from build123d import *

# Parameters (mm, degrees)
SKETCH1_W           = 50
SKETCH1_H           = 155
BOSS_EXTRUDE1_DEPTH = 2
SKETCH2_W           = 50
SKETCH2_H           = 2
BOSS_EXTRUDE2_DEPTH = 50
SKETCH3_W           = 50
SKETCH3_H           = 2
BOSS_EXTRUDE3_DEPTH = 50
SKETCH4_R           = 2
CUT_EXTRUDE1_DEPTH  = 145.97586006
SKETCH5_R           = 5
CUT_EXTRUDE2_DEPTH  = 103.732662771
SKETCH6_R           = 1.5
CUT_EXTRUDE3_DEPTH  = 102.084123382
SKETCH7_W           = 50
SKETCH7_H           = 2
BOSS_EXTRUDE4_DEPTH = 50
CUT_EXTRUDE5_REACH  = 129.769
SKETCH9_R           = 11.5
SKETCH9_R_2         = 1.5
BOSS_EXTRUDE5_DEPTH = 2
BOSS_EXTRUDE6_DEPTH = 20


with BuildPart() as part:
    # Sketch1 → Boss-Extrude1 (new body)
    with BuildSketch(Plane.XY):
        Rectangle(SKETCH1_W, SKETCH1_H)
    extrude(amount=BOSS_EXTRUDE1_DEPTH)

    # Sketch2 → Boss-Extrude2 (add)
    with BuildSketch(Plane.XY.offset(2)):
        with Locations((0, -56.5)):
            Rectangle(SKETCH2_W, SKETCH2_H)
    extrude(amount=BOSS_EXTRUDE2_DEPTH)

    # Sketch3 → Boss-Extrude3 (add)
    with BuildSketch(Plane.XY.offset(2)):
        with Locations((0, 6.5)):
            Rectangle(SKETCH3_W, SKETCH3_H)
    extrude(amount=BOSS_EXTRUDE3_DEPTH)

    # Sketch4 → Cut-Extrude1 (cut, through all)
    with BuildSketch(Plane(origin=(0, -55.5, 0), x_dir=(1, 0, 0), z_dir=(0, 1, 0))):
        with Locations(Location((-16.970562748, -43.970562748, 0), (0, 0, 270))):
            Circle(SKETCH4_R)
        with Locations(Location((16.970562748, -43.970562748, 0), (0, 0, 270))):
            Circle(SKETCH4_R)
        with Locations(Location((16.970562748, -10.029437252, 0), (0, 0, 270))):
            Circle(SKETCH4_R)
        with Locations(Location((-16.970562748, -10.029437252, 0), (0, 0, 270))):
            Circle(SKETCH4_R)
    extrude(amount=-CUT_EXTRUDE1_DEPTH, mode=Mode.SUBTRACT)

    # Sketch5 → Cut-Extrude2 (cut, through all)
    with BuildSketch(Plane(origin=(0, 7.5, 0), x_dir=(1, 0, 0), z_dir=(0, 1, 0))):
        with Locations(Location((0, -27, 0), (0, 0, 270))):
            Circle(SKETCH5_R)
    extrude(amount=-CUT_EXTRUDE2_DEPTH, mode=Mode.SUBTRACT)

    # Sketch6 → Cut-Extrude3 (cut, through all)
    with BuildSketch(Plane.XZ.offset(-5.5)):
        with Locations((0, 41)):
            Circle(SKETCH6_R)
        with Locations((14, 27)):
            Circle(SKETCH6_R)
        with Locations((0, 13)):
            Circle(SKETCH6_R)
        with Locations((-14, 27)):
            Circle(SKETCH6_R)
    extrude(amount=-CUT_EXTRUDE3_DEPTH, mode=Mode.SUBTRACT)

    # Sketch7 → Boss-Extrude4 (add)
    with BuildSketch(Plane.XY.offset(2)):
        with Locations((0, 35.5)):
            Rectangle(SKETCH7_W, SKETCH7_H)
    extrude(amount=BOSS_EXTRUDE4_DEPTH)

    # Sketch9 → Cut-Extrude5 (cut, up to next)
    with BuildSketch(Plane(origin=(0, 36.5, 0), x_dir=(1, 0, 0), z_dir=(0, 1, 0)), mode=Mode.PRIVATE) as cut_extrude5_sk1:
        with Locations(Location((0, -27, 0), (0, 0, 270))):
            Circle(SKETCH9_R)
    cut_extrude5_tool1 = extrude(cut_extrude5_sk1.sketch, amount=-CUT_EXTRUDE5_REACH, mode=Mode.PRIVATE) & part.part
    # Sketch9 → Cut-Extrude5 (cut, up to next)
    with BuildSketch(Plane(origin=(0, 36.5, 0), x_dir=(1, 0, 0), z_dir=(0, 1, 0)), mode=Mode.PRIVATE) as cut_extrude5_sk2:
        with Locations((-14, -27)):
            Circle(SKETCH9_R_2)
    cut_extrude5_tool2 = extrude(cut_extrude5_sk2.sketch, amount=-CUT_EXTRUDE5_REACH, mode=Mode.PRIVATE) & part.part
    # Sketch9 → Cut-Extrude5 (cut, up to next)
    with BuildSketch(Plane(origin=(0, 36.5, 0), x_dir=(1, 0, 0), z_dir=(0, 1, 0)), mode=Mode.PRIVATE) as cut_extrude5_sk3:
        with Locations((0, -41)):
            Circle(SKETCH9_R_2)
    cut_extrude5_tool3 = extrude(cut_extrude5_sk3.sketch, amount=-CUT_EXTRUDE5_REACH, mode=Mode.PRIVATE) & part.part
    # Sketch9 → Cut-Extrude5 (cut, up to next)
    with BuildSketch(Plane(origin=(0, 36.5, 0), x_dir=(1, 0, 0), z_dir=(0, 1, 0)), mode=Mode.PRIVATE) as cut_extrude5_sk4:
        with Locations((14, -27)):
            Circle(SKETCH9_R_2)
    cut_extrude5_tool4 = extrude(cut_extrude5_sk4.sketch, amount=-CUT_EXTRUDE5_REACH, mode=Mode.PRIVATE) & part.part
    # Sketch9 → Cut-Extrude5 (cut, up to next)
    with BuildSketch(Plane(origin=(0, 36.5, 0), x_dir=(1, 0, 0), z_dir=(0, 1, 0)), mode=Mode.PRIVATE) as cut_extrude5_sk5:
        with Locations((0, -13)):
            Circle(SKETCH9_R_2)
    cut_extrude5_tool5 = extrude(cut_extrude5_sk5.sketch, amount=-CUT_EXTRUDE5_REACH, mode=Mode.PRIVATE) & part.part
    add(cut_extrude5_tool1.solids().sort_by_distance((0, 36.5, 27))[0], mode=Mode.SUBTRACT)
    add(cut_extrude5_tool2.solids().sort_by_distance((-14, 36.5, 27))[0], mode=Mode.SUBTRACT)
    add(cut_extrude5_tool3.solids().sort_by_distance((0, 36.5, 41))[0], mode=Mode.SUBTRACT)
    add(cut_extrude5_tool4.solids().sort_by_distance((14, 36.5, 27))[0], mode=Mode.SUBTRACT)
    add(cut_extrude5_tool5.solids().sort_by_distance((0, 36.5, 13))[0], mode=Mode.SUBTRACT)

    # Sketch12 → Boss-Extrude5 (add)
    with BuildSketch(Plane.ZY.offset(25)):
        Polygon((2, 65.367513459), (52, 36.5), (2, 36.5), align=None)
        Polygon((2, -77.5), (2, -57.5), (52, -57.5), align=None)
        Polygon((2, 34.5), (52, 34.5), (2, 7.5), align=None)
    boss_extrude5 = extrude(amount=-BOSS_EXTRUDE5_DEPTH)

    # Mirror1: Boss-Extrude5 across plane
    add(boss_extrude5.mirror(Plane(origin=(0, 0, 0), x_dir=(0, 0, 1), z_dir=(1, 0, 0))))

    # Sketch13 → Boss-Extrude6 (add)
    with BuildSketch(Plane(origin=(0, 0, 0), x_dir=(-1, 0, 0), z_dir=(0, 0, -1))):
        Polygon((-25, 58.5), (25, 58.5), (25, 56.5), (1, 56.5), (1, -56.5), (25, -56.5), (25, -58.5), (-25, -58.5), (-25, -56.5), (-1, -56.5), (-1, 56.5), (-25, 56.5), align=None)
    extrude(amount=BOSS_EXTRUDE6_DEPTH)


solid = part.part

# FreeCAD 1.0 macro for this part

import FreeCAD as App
import Part
import Sketcher
from FreeCAD import Vector
Q = App.Units.Quantity


def add_polygon(sketch, points):
    """Adds a closed chain of lines whose ends are joined by coincident constraints."""
    first, n = sketch.GeometryCount, len(points)
    for a, b in zip(points, points[1:] + points[:1]):
        sketch.addGeometry(Part.LineSegment(App.Vector(*a, 0), App.Vector(*b, 0)), False)
    for i in range(n):
        sketch.addConstraint(Sketcher.Constraint("Coincident", first + i, 2, first + (i + 1) % n, 1))

doc = App.newDocument("Part")
params = doc.addObject("Spreadsheet::Sheet", "Params")
for row, (alias, value) in enumerate([
    ("sketch1_width", "50 mm"),
    ("sketch1_height", "155 mm"),
    ("pad1_length", "2 mm"),
    ("sketch2_width", "50 mm"),
    ("sketch2_height", "2 mm"),
    ("pad2_length", "50 mm"),
    ("sketch3_width", "50 mm"),
    ("sketch3_height", "2 mm"),
    ("pad3_length", "50 mm"),
    ("sketch4_diameter", "4 mm"),
    ("sketch5_diameter", "10 mm"),
    ("sketch6_diameter", "3 mm"),
    ("sketch7_width", "50 mm"),
    ("sketch7_height", "2 mm"),
    ("pad4_length", "50 mm"),
    ("sketch8_diameter", "23 mm"),
    ("sketch9_diameter", "3 mm"),
    ("sketch10_diameter", "3 mm"),
    ("sketch11_diameter", "3 mm"),
    ("sketch12_diameter", "3 mm"),
    ("sketch13_width", "20 mm"),
    ("sketch13_width2", "27 mm"),
    ("sketch13_height", "50 mm"),
    ("pad5_length", "2 mm"),
    ("sketch14_width", "50 mm"),
    ("sketch14_width2", "24 mm"),
    ("sketch14_height", "2 mm"),
    ("sketch14_height2", "113 mm"),
    ("pad6_length", "20 mm"),
], start=1):
    params.set(f"A{row}", alias)
    params.set(f"B{row}", "=" + value)
    params.setAlias(f"B{row}", alias)

body = doc.addObject("PartDesign::Body", "Body")

# Sketch on XY plane
sketch1 = doc.addObject("Sketcher::SketchObject", "Sketch")
body.addObject(sketch1)
sketch1.AttachmentSupport = (doc.XY_Plane, [""])
sketch1.MapMode = "FlatFace"
add_polygon(sketch1, [(-25, 77.5), (-25, -77.5), (25, -77.5), (25, 77.5)])  # lines 0-3
sketch1.addConstraint([
    Sketcher.Constraint("Vertical", 0),
    Sketcher.Constraint("Horizontal", 1),
    Sketcher.Constraint("Vertical", 2),
    Sketcher.Constraint("Horizontal", 3),
    Sketcher.Constraint("Symmetric", 0, 2, 2, 2, -1, 1),
    Sketcher.Constraint("DistanceX", 1, 1, 1, 2, Q("50 mm")),
    Sketcher.Constraint("DistanceY", 0, 2, 0, 1, Q("155 mm")),
])
sketch1.setExpression("Constraints[9]", "Params.sketch1_width")
sketch1.setExpression("Constraints[10]", "Params.sketch1_height")
pad1 = doc.addObject("PartDesign::Pad", "Pad")
body.addObject(pad1)
pad1.Profile = sketch1
pad1.setExpression("Length", "Params.pad1_length")

# Sketch on XY plane
sketch2 = doc.addObject("Sketcher::SketchObject", "Sketch001")
body.addObject(sketch2)
sketch2.AttachmentSupport = (doc.XY_Plane, [""])
sketch2.MapMode = "FlatFace"
sketch2.AttachmentOffset = App.Placement(Vector(0, 0, 2), App.Rotation())
add_polygon(sketch2, [(-25, -55.5), (-25, -57.5), (25, -57.5), (25, -55.5)])  # lines 0-3
sketch2.addConstraint([
    Sketcher.Constraint("Vertical", 0),
    Sketcher.Constraint("Horizontal", 1),
    Sketcher.Constraint("Vertical", 2),
    Sketcher.Constraint("Horizontal", 3),
    Sketcher.Constraint("DistanceX", 1, 1, 1, 2, Q("50 mm")),
    Sketcher.Constraint("DistanceY", 0, 2, 0, 1, Q("2 mm")),
    Sketcher.Constraint("DistanceX", 0, 2, -1, 1, Q("25 mm")),
    Sketcher.Constraint("DistanceY", 0, 2, -1, 1, Q("57.5 mm")),
])
sketch2.setExpression("Constraints[8]", "Params.sketch2_width")
sketch2.setExpression("Constraints[9]", "Params.sketch2_height")
pad2 = doc.addObject("PartDesign::Pad", "Pad001")
body.addObject(pad2)
pad2.Profile = sketch2
pad2.setExpression("Length", "Params.pad2_length")

# Sketch on XY plane
sketch3 = doc.addObject("Sketcher::SketchObject", "Sketch002")
body.addObject(sketch3)
sketch3.AttachmentSupport = (doc.XY_Plane, [""])
sketch3.MapMode = "FlatFace"
sketch3.AttachmentOffset = App.Placement(Vector(0, 0, 2), App.Rotation())
add_polygon(sketch3, [(-25, 7.5), (-25, 5.5), (25, 5.5), (25, 7.5)])  # lines 0-3
sketch3.addConstraint([
    Sketcher.Constraint("Vertical", 0),
    Sketcher.Constraint("Horizontal", 1),
    Sketcher.Constraint("Vertical", 2),
    Sketcher.Constraint("Horizontal", 3),
    Sketcher.Constraint("DistanceX", 1, 1, 1, 2, Q("50 mm")),
    Sketcher.Constraint("DistanceY", 0, 2, 0, 1, Q("2 mm")),
    Sketcher.Constraint("DistanceX", 0, 2, -1, 1, Q("25 mm")),
    Sketcher.Constraint("DistanceY", -1, 1, 0, 2, Q("5.5 mm")),
])
sketch3.setExpression("Constraints[8]", "Params.sketch3_width")
sketch3.setExpression("Constraints[9]", "Params.sketch3_height")
pad3 = doc.addObject("PartDesign::Pad", "Pad002")
body.addObject(pad3)
pad3.Profile = sketch3
pad3.setExpression("Length", "Params.pad3_length")

# Sketch on XZ plane
sketch4 = doc.addObject("Sketcher::SketchObject", "Sketch003")
body.addObject(sketch4)
sketch4.AttachmentSupport = (doc.XZ_Plane, [""])
sketch4.MapMode = "FlatFace"
sketch4.AttachmentOffset = App.Placement(Vector(0, 0, 55.5), App.Rotation())
sketch4.addGeometry([
    Part.Circle(Vector(-16.970563, 43.970563, 0), Vector(0, 0, 1), 2),
    Part.Circle(Vector(16.970563, 43.970563, 0), Vector(0, 0, 1), 2),
    Part.Circle(Vector(16.970563, 10.029437, 0), Vector(0, 0, 1), 2),
    Part.Circle(Vector(-16.970563, 10.029437, 0), Vector(0, 0, 1), 2),
], False)
sketch4.addConstraint([
    Sketcher.Constraint("Equal", 0, 1),
    Sketcher.Constraint("Equal", 1, 2),
    Sketcher.Constraint("Equal", 2, 3),
    Sketcher.Constraint("Symmetric", 0, 3, 1, 3, -2),
    Sketcher.Constraint("Symmetric", 2, 3, 3, 3, -2),
    Sketcher.Constraint("Vertical", 1, 3, 2, 3),
    Sketcher.Constraint("Diameter", 0, Q("4 mm")),
    Sketcher.Constraint("DistanceX", 0, 3, -1, 1, Q("16.970563 mm")),
    Sketcher.Constraint("DistanceY", -1, 1, 0, 3, Q("43.970563 mm")),
    Sketcher.Constraint("DistanceY", -1, 1, 2, 3, Q("10.029437 mm")),
])
sketch4.setExpression("Constraints[6]", "Params.sketch4_diameter")
pocket1 = doc.addObject("PartDesign::Pocket", "Pocket")
body.addObject(pocket1)
pocket1.Profile = sketch4
pocket1.Type = "ThroughAll"
pocket1.Reversed = True

# Sketch on XZ plane
sketch5 = doc.addObject("Sketcher::SketchObject", "Sketch004")
body.addObject(sketch5)
sketch5.AttachmentSupport = (doc.XZ_Plane, [""])
sketch5.MapMode = "FlatFace"
sketch5.AttachmentOffset = App.Placement(Vector(0, 0, -7.5), App.Rotation())
sketch5.addGeometry(Part.Circle(Vector(0, 27, 0), Vector(0, 0, 1), 5), False)
sketch5.addConstraint([
    Sketcher.Constraint("PointOnObject", 0, 3, -2),
    Sketcher.Constraint("Diameter", 0, Q("10 mm")),
    Sketcher.Constraint("DistanceY", -1, 1, 0, 3, Q("27 mm")),
])
sketch5.setExpression("Constraints[1]", "Params.sketch5_diameter")
pocket2 = doc.addObject("PartDesign::Pocket", "Pocket001")
body.addObject(pocket2)
pocket2.Profile = sketch5
pocket2.Type = "ThroughAll"
pocket2.Reversed = True

# Sketch on XZ plane
sketch6 = doc.addObject("Sketcher::SketchObject", "Sketch005")
body.addObject(sketch6)
sketch6.AttachmentSupport = (doc.XZ_Plane, [""])
sketch6.MapMode = "FlatFace"
sketch6.AttachmentOffset = App.Placement(Vector(0, 0, -5.5), App.Rotation())
sketch6.addGeometry([
    Part.Circle(Vector(0, 41, 0), Vector(0, 0, 1), 1.5),
    Part.Circle(Vector(14, 27, 0), Vector(0, 0, 1), 1.5),
    Part.Circle(Vector(0, 13, 0), Vector(0, 0, 1), 1.5),
    Part.Circle(Vector(-14, 27, 0), Vector(0, 0, 1), 1.5),
], False)
sketch6.addConstraint([
    Sketcher.Constraint("Equal", 0, 1),
    Sketcher.Constraint("Equal", 1, 2),
    Sketcher.Constraint("Equal", 2, 3),
    Sketcher.Constraint("Symmetric", 1, 3, 3, 3, -2),
    Sketcher.Constraint("PointOnObject", 0, 3, -2),
    Sketcher.Constraint("PointOnObject", 2, 3, -2),
    Sketcher.Constraint("Diameter", 0, Q("3 mm")),
    Sketcher.Constraint("DistanceY", -1, 1, 0, 3, Q("41 mm")),
    Sketcher.Constraint("DistanceX", -1, 1, 1, 3, Q("14 mm")),
    Sketcher.Constraint("DistanceY", -1, 1, 1, 3, Q("27 mm")),
    Sketcher.Constraint("DistanceY", -1, 1, 2, 3, Q("13 mm")),
])
sketch6.setExpression("Constraints[6]", "Params.sketch6_diameter")
pocket3 = doc.addObject("PartDesign::Pocket", "Pocket002")
body.addObject(pocket3)
pocket3.Profile = sketch6
pocket3.Type = "ThroughAll"

# Sketch on XY plane
sketch7 = doc.addObject("Sketcher::SketchObject", "Sketch006")
body.addObject(sketch7)
sketch7.AttachmentSupport = (doc.XY_Plane, [""])
sketch7.MapMode = "FlatFace"
sketch7.AttachmentOffset = App.Placement(Vector(0, 0, 2), App.Rotation())
add_polygon(sketch7, [(-25, 36.5), (-25, 34.5), (25, 34.5), (25, 36.5)])  # lines 0-3
sketch7.addConstraint([
    Sketcher.Constraint("Vertical", 0),
    Sketcher.Constraint("Horizontal", 1),
    Sketcher.Constraint("Vertical", 2),
    Sketcher.Constraint("Horizontal", 3),
    Sketcher.Constraint("DistanceX", 1, 1, 1, 2, Q("50 mm")),
    Sketcher.Constraint("DistanceY", 0, 2, 0, 1, Q("2 mm")),
    Sketcher.Constraint("DistanceX", 0, 2, -1, 1, Q("25 mm")),
    Sketcher.Constraint("DistanceY", -1, 1, 0, 2, Q("34.5 mm")),
])
sketch7.setExpression("Constraints[8]", "Params.sketch7_width")
sketch7.setExpression("Constraints[9]", "Params.sketch7_height")
pad4 = doc.addObject("PartDesign::Pad", "Pad003")
body.addObject(pad4)
pad4.Profile = sketch7
pad4.setExpression("Length", "Params.pad4_length")

# Sketch on XZ plane
sketch8 = doc.addObject("Sketcher::SketchObject", "Sketch007")
body.addObject(sketch8)
sketch8.AttachmentSupport = (doc.XZ_Plane, [""])
sketch8.MapMode = "FlatFace"
sketch8.AttachmentOffset = App.Placement(Vector(0, 0, -36.5), App.Rotation())
sketch8.addGeometry(Part.Circle(Vector(0, 27, 0), Vector(0, 0, 1), 11.5), False)
sketch8.addConstraint([
    Sketcher.Constraint("PointOnObject", 0, 3, -2),
    Sketcher.Constraint("Diameter", 0, Q("23 mm")),
    Sketcher.Constraint("DistanceY", -1, 1, 0, 3, Q("27 mm")),
])
sketch8.setExpression("Constraints[1]", "Params.sketch8_diameter")
pocket4 = doc.addObject("PartDesign::Pocket", "Pocket003")
body.addObject(pocket4)
pocket4.Profile = sketch8
pocket4.Type = "UpToFirst"
pocket4.Reversed = True

# Sketch on XZ plane
sketch9 = doc.addObject("Sketcher::SketchObject", "Sketch008")
body.addObject(sketch9)
sketch9.AttachmentSupport = (doc.XZ_Plane, [""])
sketch9.MapMode = "FlatFace"
sketch9.AttachmentOffset = App.Placement(Vector(0, 0, -36.5), App.Rotation())
sketch9.addGeometry(Part.Circle(Vector(-14, 27, 0), Vector(0, 0, 1), 1.5), False)
sketch9.addConstraint([
    Sketcher.Constraint("Diameter", 0, Q("3 mm")),
    Sketcher.Constraint("DistanceX", 0, 3, -1, 1, Q("14 mm")),
    Sketcher.Constraint("DistanceY", -1, 1, 0, 3, Q("27 mm")),
])
sketch9.setExpression("Constraints[0]", "Params.sketch9_diameter")
pocket5 = doc.addObject("PartDesign::Pocket", "Pocket004")
body.addObject(pocket5)
pocket5.Profile = sketch9
pocket5.Type = "UpToFirst"
pocket5.Reversed = True

# Sketch on XZ plane
sketch10 = doc.addObject("Sketcher::SketchObject", "Sketch009")
body.addObject(sketch10)
sketch10.AttachmentSupport = (doc.XZ_Plane, [""])
sketch10.MapMode = "FlatFace"
sketch10.AttachmentOffset = App.Placement(Vector(0, 0, -36.5), App.Rotation())
sketch10.addGeometry(Part.Circle(Vector(0, 41, 0), Vector(0, 0, 1), 1.5), False)
sketch10.addConstraint([
    Sketcher.Constraint("PointOnObject", 0, 3, -2),
    Sketcher.Constraint("Diameter", 0, Q("3 mm")),
    Sketcher.Constraint("DistanceY", -1, 1, 0, 3, Q("41 mm")),
])
sketch10.setExpression("Constraints[1]", "Params.sketch10_diameter")
pocket6 = doc.addObject("PartDesign::Pocket", "Pocket005")
body.addObject(pocket6)
pocket6.Profile = sketch10
pocket6.Type = "UpToFirst"
pocket6.Reversed = True

# Sketch on XZ plane
sketch11 = doc.addObject("Sketcher::SketchObject", "Sketch010")
body.addObject(sketch11)
sketch11.AttachmentSupport = (doc.XZ_Plane, [""])
sketch11.MapMode = "FlatFace"
sketch11.AttachmentOffset = App.Placement(Vector(0, 0, -36.5), App.Rotation())
sketch11.addGeometry(Part.Circle(Vector(14, 27, 0), Vector(0, 0, 1), 1.5), False)
sketch11.addConstraint([
    Sketcher.Constraint("Diameter", 0, Q("3 mm")),
    Sketcher.Constraint("DistanceX", -1, 1, 0, 3, Q("14 mm")),
    Sketcher.Constraint("DistanceY", -1, 1, 0, 3, Q("27 mm")),
])
sketch11.setExpression("Constraints[0]", "Params.sketch11_diameter")
pocket7 = doc.addObject("PartDesign::Pocket", "Pocket006")
body.addObject(pocket7)
pocket7.Profile = sketch11
pocket7.Type = "UpToFirst"
pocket7.Reversed = True

# Sketch on XZ plane
sketch12 = doc.addObject("Sketcher::SketchObject", "Sketch011")
body.addObject(sketch12)
sketch12.AttachmentSupport = (doc.XZ_Plane, [""])
sketch12.MapMode = "FlatFace"
sketch12.AttachmentOffset = App.Placement(Vector(0, 0, -36.5), App.Rotation())
sketch12.addGeometry(Part.Circle(Vector(0, 13, 0), Vector(0, 0, 1), 1.5), False)
sketch12.addConstraint([
    Sketcher.Constraint("PointOnObject", 0, 3, -2),
    Sketcher.Constraint("Diameter", 0, Q("3 mm")),
    Sketcher.Constraint("DistanceY", -1, 1, 0, 3, Q("13 mm")),
])
sketch12.setExpression("Constraints[1]", "Params.sketch12_diameter")
pocket8 = doc.addObject("PartDesign::Pocket", "Pocket007")
body.addObject(pocket8)
pocket8.Profile = sketch12
pocket8.Type = "UpToFirst"
pocket8.Reversed = True

# Sketch on YZ plane
sketch13 = doc.addObject("Sketcher::SketchObject", "Sketch012")
body.addObject(sketch13)
sketch13.AttachmentSupport = (doc.YZ_Plane, [""])
sketch13.MapMode = "FlatFace"
sketch13.AttachmentOffset = App.Placement(Vector(0, 0, -25), App.Rotation())
add_polygon(sketch13, [(36.5, 52), (65.367513, 2), (36.5, 2)])  # lines 0-2
add_polygon(sketch13, [(-57.5, 2), (-77.5, 2), (-57.5, 52)])  # lines 3-5
add_polygon(sketch13, [(34.5, 52), (34.5, 2), (7.5, 2)])  # lines 6-8
sketch13.addConstraint([
    Sketcher.Constraint("Horizontal", 1),
    Sketcher.Constraint("Vertical", 2),
    Sketcher.Constraint("Horizontal", 3),
    Sketcher.Constraint("Vertical", 5),
    Sketcher.Constraint("Vertical", 6),
    Sketcher.Constraint("Horizontal", 7),
    Sketcher.Constraint("Horizontal", 1, 2, 3, 2),
    Sketcher.Constraint("Horizontal", 2, 2, 4, 2),
    Sketcher.Constraint("Horizontal", 5, 2, 6, 2),
    Sketcher.Constraint("Horizontal", 4, 2, 8, 2),
    Sketcher.Constraint("DistanceX", 3, 2, 3, 1, Q("20 mm")),
    Sketcher.Constraint("DistanceX", 7, 2, 7, 1, Q("27 mm")),
    Sketcher.Constraint("DistanceY", 2, 1, 2, 2, Q("50 mm")),
    Sketcher.Constraint("Angle", 0, Q("-60 deg")),
    Sketcher.Constraint("DistanceY", -1, 1, 0, 2, Q("2 mm")),
    Sketcher.Constraint("DistanceX", 3, 2, 1, 2, Q("114 mm")),
    Sketcher.Constraint("DistanceX", 6, 2, 1, 2, Q("2 mm")),
    Sketcher.Constraint("DistanceX", -1, 1, 1, 2, Q("36.5 mm")),
])
sketch13.setExpression("Constraints[19]", "Params.sketch13_width")
sketch13.setExpression("Constraints[20]", "Params.sketch13_width2")
sketch13.setExpression("Constraints[21]", "Params.sketch13_height")
pad5 = doc.addObject("PartDesign::Pad", "Pad004")
body.addObject(pad5)
pad5.Profile = sketch13
pad5.setExpression("Length", "Params.pad5_length")
doc.recompute()

mirrored = doc.addObject("PartDesign::Mirrored", "Mirrored")
body.addObject(mirrored)
mirrored.Originals = [pad5]
mirrored.MirrorPlane = (doc.YZ_Plane, [""])
body.Tip = mirrored

# Sketch on XY plane
sketch14 = doc.addObject("Sketcher::SketchObject", "Sketch013")
body.addObject(sketch14)
sketch14.AttachmentSupport = (doc.XY_Plane, [""])
sketch14.MapMode = "FlatFace"
add_polygon(sketch14, [(-25, 58.5), (25, 58.5), (25, 56.5), (1, 56.5), (1, -56.5), (25, -56.5), (25, -58.5), (-25, -58.5), (-25, -56.5), (-1, -56.5), (-1, 56.5), (-25, 56.5)])  # lines 0-11
sketch14.addConstraint([
    Sketcher.Constraint("Horizontal", 0),
    Sketcher.Constraint("Vertical", 1),
    Sketcher.Constraint("Horizontal", 2),
    Sketcher.Constraint("Vertical", 3),
    Sketcher.Constraint("Horizontal", 4),
    Sketcher.Constraint("Vertical", 5),
    Sketcher.Constraint("Horizontal", 6),
    Sketcher.Constraint("Vertical", 7),
    Sketcher.Constraint("Horizontal", 8),
    Sketcher.Constraint("Vertical", 9),
    Sketcher.Constraint("Horizontal", 10),
    Sketcher.Constraint("Vertical", 11),
    Sketcher.Constraint("Symmetric", 0, 2, 6, 2, -1, 1),
    Sketcher.Constraint("Symmetric", 2, 2, 8, 2, -1, 1),
    Sketcher.Constraint("Symmetric", 4, 2, 10, 2, -1, 1),
    Sketcher.Constraint("Symmetric", 4, 2, 7, 2, -2),
    Sketcher.Constraint("DistanceX", 0, 1, 0, 2, Q("50 mm")),
    Sketcher.Constraint("DistanceX", 2, 2, 2, 1, Q("24 mm")),
    Sketcher.Constraint("DistanceY", 1, 2, 1, 1, Q("2 mm")),
    Sketcher.Constraint("DistanceY", 3, 2, 3, 1, Q("113 mm")),
])
sketch14.setExpression("Constraints[28]", "Params.sketch14_width")
sketch14.setExpression("Constraints[29]", "Params.sketch14_width2")
sketch14.setExpression("Constraints[30]", "Params.sketch14_height")
sketch14.setExpression("Constraints[31]", "Params.sketch14_height2")
pad6 = doc.addObject("PartDesign::Pad", "Pad005")
body.addObject(pad6)
pad6.Profile = sketch14
pad6.setExpression("Length", "Params.pad6_length")
pad6.Reversed = True

doc.recompute()
